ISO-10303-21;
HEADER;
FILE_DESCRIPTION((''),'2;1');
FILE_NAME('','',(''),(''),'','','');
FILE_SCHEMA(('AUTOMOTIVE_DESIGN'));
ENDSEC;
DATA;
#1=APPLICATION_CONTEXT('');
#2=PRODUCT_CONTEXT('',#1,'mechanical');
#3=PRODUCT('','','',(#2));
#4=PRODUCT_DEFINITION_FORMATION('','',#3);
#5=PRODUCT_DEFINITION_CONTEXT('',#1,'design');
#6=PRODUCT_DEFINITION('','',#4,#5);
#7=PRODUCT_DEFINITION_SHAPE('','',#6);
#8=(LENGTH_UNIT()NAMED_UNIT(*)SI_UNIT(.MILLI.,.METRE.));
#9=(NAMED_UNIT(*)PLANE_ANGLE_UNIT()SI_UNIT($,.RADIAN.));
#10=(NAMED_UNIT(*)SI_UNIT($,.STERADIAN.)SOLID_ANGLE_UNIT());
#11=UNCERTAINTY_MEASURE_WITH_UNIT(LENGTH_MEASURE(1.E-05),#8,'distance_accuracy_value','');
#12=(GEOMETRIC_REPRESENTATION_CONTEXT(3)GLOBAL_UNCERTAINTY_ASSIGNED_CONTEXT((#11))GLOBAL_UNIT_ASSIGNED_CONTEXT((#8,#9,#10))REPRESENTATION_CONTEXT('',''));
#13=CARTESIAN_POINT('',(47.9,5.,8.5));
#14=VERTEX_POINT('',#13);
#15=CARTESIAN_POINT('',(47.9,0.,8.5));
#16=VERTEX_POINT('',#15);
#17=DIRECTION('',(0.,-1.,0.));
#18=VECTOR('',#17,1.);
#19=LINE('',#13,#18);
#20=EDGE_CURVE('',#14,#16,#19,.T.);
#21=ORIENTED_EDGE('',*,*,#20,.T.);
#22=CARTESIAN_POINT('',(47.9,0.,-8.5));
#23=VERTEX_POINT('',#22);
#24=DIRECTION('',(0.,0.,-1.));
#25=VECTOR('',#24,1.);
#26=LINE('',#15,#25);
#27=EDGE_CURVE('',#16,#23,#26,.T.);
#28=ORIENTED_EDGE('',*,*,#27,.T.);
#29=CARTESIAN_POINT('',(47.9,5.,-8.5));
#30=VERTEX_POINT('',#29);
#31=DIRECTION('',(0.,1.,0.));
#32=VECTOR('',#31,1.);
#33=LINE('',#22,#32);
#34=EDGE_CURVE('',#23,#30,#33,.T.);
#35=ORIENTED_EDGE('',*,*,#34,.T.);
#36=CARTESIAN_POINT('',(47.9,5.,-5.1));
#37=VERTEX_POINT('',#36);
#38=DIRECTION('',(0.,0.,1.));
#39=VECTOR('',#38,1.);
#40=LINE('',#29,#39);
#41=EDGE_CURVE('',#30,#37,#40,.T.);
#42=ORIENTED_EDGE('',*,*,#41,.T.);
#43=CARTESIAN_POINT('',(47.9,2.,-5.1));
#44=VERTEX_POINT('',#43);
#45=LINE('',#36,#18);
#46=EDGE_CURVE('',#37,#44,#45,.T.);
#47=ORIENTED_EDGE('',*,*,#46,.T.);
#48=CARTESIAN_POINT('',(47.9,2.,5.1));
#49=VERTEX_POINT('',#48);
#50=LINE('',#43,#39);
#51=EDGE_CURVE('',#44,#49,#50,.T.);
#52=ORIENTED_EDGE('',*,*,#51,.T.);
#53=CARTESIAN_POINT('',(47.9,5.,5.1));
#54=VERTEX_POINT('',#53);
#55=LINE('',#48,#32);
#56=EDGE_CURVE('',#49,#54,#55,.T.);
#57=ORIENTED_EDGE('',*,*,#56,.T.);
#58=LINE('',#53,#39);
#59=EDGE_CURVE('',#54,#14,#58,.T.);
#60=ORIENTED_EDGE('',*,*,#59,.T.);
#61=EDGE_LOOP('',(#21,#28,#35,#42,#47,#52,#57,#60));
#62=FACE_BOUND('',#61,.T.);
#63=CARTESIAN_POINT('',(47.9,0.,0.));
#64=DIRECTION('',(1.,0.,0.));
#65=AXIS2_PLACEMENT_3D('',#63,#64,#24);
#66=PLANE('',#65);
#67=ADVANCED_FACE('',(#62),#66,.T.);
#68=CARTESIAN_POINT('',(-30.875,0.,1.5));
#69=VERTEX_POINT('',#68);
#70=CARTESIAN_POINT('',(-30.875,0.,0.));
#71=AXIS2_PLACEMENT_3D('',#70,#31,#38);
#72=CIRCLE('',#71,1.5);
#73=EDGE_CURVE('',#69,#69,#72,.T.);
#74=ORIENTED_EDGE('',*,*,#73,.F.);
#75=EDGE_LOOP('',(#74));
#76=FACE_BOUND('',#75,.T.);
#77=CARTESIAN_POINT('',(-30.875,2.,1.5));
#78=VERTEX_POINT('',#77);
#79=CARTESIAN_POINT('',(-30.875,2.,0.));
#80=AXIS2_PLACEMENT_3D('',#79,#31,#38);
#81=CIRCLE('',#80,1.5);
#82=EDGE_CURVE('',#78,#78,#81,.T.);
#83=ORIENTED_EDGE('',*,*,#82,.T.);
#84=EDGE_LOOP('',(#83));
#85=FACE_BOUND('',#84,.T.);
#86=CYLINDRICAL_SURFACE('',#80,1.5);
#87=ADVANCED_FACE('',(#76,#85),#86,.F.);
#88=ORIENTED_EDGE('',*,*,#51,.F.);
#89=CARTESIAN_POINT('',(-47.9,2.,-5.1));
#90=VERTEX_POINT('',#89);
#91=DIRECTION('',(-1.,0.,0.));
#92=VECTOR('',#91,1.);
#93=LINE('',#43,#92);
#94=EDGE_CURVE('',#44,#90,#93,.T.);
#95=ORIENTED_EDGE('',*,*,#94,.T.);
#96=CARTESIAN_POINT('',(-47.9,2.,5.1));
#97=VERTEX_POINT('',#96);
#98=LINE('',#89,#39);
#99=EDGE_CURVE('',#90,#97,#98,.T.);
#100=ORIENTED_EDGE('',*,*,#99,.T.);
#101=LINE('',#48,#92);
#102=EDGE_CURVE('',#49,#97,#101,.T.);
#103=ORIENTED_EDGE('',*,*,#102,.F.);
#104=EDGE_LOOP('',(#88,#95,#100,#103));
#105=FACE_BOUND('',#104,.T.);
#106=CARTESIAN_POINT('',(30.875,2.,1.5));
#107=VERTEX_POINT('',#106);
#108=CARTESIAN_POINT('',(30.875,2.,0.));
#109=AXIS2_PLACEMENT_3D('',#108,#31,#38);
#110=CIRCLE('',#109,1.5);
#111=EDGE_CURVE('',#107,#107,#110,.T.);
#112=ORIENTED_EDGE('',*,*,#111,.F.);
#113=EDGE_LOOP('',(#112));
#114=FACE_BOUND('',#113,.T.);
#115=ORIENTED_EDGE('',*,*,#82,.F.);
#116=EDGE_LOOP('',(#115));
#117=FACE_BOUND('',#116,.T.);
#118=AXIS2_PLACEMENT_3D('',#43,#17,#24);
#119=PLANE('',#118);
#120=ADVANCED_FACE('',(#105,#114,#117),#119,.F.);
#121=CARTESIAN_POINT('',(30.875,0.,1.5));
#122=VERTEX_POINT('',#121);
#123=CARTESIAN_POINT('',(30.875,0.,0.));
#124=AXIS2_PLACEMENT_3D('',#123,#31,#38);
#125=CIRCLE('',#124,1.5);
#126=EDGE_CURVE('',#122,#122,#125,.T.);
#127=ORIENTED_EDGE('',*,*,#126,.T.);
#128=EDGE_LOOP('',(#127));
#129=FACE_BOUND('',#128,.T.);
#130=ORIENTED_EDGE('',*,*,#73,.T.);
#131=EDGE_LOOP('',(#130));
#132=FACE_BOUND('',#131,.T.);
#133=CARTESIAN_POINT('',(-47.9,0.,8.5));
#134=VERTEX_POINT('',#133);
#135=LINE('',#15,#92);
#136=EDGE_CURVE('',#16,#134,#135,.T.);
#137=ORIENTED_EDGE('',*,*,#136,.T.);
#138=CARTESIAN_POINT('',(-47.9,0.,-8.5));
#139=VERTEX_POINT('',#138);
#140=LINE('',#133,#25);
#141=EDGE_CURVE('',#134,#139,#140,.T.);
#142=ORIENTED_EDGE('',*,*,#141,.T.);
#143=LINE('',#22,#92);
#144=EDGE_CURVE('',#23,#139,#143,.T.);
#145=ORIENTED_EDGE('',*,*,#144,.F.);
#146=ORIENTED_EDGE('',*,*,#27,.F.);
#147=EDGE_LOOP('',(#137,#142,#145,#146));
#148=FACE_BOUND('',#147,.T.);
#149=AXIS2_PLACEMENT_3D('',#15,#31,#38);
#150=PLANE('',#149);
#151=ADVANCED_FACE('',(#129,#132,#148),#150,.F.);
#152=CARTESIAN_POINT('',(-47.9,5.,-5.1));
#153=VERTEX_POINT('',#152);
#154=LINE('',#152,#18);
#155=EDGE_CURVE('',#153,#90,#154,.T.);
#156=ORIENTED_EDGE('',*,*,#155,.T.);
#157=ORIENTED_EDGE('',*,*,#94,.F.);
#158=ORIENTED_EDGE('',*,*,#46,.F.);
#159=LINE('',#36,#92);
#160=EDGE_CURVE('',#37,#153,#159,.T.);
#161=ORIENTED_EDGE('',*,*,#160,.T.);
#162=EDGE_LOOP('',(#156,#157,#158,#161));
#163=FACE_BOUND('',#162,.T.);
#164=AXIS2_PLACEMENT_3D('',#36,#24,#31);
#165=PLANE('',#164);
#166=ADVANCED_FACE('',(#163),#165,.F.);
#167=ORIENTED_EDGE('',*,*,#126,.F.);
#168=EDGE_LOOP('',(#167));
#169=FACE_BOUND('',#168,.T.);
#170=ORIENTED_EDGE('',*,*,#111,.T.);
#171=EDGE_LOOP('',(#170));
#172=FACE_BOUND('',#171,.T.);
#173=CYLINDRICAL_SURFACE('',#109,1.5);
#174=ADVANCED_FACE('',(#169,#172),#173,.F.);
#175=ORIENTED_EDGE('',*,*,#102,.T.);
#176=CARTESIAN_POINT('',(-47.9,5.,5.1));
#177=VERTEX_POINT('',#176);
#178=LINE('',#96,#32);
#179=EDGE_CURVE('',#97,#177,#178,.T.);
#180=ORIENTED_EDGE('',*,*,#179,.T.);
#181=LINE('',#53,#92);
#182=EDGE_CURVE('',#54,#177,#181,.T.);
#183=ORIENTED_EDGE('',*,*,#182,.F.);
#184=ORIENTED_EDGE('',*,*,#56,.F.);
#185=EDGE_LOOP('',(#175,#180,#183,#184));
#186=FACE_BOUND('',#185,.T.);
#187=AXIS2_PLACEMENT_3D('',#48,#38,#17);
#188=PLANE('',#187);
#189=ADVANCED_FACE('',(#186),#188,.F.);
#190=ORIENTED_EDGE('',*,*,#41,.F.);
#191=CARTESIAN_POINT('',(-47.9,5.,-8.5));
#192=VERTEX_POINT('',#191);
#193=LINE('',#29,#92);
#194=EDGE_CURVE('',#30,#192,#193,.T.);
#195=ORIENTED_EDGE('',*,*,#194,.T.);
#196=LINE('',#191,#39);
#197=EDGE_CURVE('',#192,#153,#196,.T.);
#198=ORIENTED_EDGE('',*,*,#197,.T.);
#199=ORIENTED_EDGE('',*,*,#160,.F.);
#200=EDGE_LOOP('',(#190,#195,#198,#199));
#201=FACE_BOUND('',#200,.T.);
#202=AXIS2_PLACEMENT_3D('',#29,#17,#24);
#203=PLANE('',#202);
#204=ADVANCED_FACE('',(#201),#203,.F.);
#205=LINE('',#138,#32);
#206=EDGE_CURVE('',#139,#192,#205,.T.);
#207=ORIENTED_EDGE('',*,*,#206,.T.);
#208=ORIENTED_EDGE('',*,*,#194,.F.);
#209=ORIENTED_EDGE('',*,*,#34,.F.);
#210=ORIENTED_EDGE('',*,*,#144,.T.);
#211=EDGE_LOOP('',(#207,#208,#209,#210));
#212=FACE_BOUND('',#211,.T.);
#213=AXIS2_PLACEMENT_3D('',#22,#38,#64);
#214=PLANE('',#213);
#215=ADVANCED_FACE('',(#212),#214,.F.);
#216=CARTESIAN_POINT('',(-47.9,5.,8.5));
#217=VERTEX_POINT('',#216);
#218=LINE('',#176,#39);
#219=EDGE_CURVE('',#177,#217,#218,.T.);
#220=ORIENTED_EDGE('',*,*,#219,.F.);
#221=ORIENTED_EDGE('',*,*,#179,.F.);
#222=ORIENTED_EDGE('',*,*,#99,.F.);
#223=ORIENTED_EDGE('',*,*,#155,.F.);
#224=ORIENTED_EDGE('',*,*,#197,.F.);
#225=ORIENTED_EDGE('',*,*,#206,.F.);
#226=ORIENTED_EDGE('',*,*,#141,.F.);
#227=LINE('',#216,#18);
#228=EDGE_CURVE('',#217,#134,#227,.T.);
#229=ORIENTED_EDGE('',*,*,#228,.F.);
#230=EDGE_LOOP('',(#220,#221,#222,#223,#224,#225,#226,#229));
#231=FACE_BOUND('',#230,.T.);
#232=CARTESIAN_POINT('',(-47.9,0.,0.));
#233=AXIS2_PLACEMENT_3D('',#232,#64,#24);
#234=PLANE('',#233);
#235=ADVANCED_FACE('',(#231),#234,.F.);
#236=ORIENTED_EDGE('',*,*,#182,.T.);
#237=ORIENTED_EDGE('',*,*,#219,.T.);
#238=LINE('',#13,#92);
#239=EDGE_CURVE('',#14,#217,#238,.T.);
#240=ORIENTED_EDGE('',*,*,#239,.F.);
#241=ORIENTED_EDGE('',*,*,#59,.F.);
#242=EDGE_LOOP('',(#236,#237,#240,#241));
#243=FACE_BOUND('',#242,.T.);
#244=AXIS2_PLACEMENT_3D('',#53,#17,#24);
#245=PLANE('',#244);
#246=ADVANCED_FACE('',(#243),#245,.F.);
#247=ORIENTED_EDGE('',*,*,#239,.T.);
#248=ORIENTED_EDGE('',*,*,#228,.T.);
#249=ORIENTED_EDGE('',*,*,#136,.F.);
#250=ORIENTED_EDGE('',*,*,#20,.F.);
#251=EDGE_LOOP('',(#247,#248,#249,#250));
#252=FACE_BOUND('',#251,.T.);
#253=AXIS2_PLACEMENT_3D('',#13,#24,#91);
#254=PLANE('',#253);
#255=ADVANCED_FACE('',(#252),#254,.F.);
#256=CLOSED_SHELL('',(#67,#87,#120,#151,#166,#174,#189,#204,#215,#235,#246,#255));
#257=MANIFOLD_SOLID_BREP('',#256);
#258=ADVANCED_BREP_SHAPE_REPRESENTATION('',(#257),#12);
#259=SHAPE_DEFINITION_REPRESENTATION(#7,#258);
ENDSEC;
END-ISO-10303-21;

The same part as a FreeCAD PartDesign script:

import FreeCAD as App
import Part
import Sketcher

V = App.Vector


def add_polygon(sketch, points):
    """Adds a closed chain of lines whose ends are joined by coincident constraints."""
    first, n = sketch.GeometryCount, len(points)
    for a, b in zip(points, points[1:] + points[:1]):
        sketch.addGeometry(Part.LineSegment(App.Vector(*a, 0), App.Vector(*b, 0)), False)
    for i in range(n):
        sketch.addConstraint(Sketcher.Constraint("Coincident", first + i, 2, first + (i + 1) % n, 1))

doc = App.newDocument("Part")
params = doc.addObject("Spreadsheet::Sheet", "Params")
for row, (alias, value) in enumerate([
    ("sketch1_width", "5 mm"),
    ("sketch1_width2", "3 mm"),
    ("sketch1_height", "17 mm"),
    ("sketch1_height2", "3.4 mm"),
    ("pad1_length", "95.8 mm"),
    ("sketch2_diameter", "3 mm"),
    ("hole_diameter", "3 mm"),
    ("hole_depth", "8.5 mm"),
], start=1):
    params.set(f"A{row}", alias)
    params.set(f"B{row}", "=" + value)
    params.setAlias(f"B{row}", alias)

body = doc.addObject("PartDesign::Body", "Body")

sketch1 = doc.addObject("Sketcher::SketchObject", "Sketch")
body.addObject(sketch1)
sketch1.AttachmentSupport = (doc.YZ_Plane, [""])
sketch1.MapMode = "FlatFace"
add_polygon(sketch1, [(0, 8.5), (0, -8.5), (5, -8.5), (5, -5.1), (2, -5.1), (2, 5.1), (5, 5.1), (5, 8.5)])
sketch1.addConstraint(Sketcher.Constraint("Vertical", 0))
sketch1.addConstraint(Sketcher.Constraint("Horizontal", 1))
sketch1.addConstraint(Sketcher.Constraint("Vertical", 2))
sketch1.addConstraint(Sketcher.Constraint("Horizontal", 3))
sketch1.addConstraint(Sketcher.Constraint("Vertical", 4))
sketch1.addConstraint(Sketcher.Constraint("Horizontal", 5))
sketch1.addConstraint(Sketcher.Constraint("Vertical", 6))
sketch1.addConstraint(Sketcher.Constraint("Horizontal", 7))
sketch1.addConstraint(Sketcher.Constraint("Symmetric", 0, 2, 7, 2, -1, 1))
sketch1.addConstraint(Sketcher.Constraint("Symmetric", 2, 2, 5, 2, -1))
sketch1.addConstraint(Sketcher.Constraint("DistanceX", 1, 1, 1, 2, 5.0))
sketch1.addConstraint(Sketcher.Constraint("DistanceX", 3, 2, 3, 1, 3.0))
sketch1.addConstraint(Sketcher.Constraint("DistanceY", 0, 2, 0, 1, 17.0))
sketch1.addConstraint(Sketcher.Constraint("DistanceY", 2, 1, 2, 2, 3.4))
sketch1.setExpression("Constraints[18]", "Params.sketch1_width")
sketch1.setExpression("Constraints[19]", "Params.sketch1_width2")
sketch1.setExpression("Constraints[20]", "Params.sketch1_height")
sketch1.setExpression("Constraints[21]", "Params.sketch1_height2")
pad1 = doc.addObject("PartDesign::Pad", "Pad")
body.addObject(pad1)
pad1.Profile = sketch1
pad1.setExpression("Length", "Params.pad1_length")
pad1.Midplane = True

sketch2 = doc.addObject("Sketcher::SketchObject", "Sketch001")
body.addObject(sketch2)
sketch2.AttachmentSupport = (doc.XZ_Plane, [""])
sketch2.MapMode = "FlatFace"
sketch2.AttachmentOffset = App.Placement(V(0, 0, -2), App.Rotation())
sketch2.addGeometry(Part.Circle(V(-30.9, 0, 0), V(0, 0, 1), 1.5), False)
sketch2.addGeometry(Part.Circle(V(30.9, 0, 0), V(0, 0, 1), 1.5), False)
sketch2.addConstraint(Sketcher.Constraint("Equal", 0, 1))
sketch2.addConstraint(Sketcher.Constraint("Symmetric", 0, 3, 1, 3, -1, 1))
sketch2.addConstraint(Sketcher.Constraint("PointOnObject", 0, 3, -1))
sketch2.addConstraint(Sketcher.Constraint("Diameter", 0, 3.0))
sketch2.addConstraint(Sketcher.Constraint("DistanceX", 0, 3, 1, 3, 61.75))
sketch2.setExpression("Constraints[3]", "Params.sketch2_diameter")
doc.recompute()
hole = doc.addObject("PartDesign::Hole", "Hole")
body.addObject(hole)
hole.Profile = sketch2
hole.ThreadType = "None"
hole.setExpression("Diameter", "Params.hole_diameter")
hole.DepthType = "Dimension"
hole.setExpression("Depth", "Params.hole_depth")
hole.DrillPoint = "Angled"
hole.DrillPointAngle = 118
hole.Reversed = True

doc.recompute()
